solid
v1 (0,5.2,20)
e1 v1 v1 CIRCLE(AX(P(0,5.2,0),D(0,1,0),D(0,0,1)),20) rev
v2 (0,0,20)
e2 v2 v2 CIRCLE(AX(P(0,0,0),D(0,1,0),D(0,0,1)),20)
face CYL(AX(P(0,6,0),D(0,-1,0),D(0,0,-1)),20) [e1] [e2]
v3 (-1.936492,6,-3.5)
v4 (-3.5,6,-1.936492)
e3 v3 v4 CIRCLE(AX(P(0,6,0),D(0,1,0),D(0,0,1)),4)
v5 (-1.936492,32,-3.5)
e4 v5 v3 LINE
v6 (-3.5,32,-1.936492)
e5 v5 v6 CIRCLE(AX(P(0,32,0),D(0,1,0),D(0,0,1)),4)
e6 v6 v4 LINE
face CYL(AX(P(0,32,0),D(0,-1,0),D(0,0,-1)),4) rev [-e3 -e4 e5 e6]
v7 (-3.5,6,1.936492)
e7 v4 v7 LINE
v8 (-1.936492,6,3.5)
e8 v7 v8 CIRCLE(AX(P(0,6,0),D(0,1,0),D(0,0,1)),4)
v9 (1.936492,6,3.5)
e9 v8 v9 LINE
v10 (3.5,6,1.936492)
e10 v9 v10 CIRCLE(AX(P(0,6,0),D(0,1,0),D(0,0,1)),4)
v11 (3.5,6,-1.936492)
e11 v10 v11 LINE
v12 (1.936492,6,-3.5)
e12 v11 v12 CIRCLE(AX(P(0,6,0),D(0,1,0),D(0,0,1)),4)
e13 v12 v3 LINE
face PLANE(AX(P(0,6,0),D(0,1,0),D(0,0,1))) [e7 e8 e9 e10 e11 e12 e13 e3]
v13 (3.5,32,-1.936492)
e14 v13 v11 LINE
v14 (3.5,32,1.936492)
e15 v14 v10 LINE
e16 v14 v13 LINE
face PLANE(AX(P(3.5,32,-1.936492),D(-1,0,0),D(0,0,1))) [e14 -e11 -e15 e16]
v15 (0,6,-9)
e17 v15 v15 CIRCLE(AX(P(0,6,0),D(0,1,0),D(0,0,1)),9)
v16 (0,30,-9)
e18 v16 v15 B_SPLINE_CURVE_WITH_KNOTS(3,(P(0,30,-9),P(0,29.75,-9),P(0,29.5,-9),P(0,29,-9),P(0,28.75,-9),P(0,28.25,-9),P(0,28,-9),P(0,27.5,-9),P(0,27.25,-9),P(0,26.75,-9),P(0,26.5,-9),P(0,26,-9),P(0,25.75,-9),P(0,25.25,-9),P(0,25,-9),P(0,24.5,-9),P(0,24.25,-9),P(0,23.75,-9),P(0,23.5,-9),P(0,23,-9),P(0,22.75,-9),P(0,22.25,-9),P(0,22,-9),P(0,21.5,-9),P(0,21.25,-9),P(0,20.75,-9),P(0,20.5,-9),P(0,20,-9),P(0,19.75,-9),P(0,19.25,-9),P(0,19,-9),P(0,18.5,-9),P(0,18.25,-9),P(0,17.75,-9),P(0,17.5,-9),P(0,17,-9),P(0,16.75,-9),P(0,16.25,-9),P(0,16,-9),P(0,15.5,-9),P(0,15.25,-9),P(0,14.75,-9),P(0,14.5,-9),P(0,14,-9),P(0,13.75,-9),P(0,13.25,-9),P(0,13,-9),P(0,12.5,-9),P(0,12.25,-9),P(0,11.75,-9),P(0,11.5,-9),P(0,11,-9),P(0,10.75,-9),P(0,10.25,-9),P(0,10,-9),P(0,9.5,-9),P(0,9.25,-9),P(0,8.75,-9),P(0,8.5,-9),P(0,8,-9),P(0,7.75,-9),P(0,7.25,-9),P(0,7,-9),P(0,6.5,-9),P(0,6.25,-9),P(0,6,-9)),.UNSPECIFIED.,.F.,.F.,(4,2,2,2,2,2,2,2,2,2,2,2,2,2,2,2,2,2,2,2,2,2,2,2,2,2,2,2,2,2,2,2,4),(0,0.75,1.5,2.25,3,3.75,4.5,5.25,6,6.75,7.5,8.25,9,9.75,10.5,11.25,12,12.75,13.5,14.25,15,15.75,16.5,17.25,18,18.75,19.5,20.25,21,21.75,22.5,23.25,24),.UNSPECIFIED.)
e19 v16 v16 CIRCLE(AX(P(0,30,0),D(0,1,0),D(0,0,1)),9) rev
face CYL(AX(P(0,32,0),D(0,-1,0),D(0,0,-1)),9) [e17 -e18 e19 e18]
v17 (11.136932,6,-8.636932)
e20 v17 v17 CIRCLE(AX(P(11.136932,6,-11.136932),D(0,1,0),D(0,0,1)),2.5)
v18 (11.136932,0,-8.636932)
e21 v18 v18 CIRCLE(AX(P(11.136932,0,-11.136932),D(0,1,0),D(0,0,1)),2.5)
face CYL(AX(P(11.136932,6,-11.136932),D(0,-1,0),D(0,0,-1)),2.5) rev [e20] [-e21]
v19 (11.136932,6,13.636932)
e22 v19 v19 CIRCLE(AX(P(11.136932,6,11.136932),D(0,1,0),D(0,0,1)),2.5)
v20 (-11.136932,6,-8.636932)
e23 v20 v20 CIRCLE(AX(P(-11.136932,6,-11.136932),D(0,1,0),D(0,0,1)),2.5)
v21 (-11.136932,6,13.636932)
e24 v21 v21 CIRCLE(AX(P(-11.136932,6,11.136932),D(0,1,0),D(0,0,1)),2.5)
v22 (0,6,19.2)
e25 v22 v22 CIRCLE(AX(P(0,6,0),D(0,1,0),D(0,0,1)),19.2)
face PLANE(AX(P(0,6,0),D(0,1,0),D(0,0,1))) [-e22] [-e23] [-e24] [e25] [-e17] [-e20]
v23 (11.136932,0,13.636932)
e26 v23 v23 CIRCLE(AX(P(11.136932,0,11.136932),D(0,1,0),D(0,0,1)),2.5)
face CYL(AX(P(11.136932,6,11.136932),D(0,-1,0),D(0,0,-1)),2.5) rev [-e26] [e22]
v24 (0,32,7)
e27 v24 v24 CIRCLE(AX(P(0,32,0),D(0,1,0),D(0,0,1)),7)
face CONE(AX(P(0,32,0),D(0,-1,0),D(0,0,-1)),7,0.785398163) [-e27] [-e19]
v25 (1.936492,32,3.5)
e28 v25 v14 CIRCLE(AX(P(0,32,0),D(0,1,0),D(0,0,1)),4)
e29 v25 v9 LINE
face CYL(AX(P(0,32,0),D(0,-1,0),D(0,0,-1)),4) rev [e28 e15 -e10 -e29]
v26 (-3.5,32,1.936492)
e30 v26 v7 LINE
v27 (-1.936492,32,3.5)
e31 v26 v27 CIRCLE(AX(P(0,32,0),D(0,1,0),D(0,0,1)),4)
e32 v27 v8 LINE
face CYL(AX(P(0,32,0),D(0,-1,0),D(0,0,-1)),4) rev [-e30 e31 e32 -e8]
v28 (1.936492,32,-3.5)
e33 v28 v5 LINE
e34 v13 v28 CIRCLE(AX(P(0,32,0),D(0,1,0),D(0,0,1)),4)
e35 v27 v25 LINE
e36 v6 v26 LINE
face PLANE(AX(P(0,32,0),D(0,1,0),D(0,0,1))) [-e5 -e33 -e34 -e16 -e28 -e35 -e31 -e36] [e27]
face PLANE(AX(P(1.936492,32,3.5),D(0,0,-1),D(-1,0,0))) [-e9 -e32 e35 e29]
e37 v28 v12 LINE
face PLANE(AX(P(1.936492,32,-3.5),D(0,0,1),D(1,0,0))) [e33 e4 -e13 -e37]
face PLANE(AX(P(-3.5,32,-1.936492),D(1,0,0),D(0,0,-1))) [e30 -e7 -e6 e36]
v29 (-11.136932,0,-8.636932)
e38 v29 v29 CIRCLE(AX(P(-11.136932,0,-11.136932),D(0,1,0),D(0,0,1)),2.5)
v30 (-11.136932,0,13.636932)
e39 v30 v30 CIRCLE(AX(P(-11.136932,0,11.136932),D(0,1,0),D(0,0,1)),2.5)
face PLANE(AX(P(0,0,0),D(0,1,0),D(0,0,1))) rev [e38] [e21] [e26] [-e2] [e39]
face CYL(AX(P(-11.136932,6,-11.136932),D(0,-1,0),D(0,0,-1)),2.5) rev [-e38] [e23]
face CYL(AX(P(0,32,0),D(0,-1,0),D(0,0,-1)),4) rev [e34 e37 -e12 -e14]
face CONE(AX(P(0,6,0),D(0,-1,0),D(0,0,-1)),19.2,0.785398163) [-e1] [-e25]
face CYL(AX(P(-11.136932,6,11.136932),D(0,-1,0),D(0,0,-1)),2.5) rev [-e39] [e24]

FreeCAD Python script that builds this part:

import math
import FreeCAD as App
import Part
import Sketcher
Q = App.Units.Quantity


def edges_at(feature, points):
    """Names of the edges that pass closest to the given points."""
    edges = feature.Shape.Edges
    near = lambda p: min(range(len(edges)), key=lambda i: edges[i].distToShape(Part.Vertex(*p))[0])
    return sorted({f"Edge{near(p) + 1}" for p in points})

doc = App.newDocument("Part")
params = doc.addObject("Spreadsheet::Sheet", "Params")
for row, (alias, value) in enumerate([
    ("sketch1_diameter", "40 mm"),
    ("sketch1_diameter2", "5 mm"),
    ("pad1_length", "6 mm"),
    ("sketch2_diameter", "18 mm"),
    ("sketch2_radius", "4 mm"),
    ("pad2_length", "26 mm"),
    ("chamfer_size", "0.8 mm"),
    ("chamfer2_size", "2 mm"),
], start=1):
    params.set(f"A{row}", alias)
    params.set(f"B{row}", "=" + value)
    params.setAlias(f"B{row}", alias)

body = doc.addObject("PartDesign::Body", "Body")

# Sketch on XZ plane
sketch1 = body.newObject("Sketcher::SketchObject", "Sketch")
sketch1.AttachmentSupport = (doc.getObject("XZ_Plane"), [""])
sketch1.MapMode = "FlatFace"
sketch1.addGeometry([
    Part.Circle(App.Vector(0, 0, 0), App.Vector(0, 0, 1), 20),  # 0
    Part.Circle(App.Vector(-11.1, -11.1, 0), App.Vector(0, 0, 1), 2.5),  # 1
    Part.Circle(App.Vector(-11.1, 11.1, 0), App.Vector(0, 0, 1), 2.5),  # 2
    Part.Circle(App.Vector(11.1, -11.1, 0), App.Vector(0, 0, 1), 2.5),  # 3
    Part.Circle(App.Vector(11.1, 11.1, 0), App.Vector(0, 0, 1), 2.5),  # 4
], False)
sketch1.addConstraint([
    Sketcher.Constraint("Coincident", 0, 3, -1, 1),
    Sketcher.Constraint("Equal", 1, 2),
    Sketcher.Constraint("Equal", 2, 3),
    Sketcher.Constraint("Equal", 3, 4),
    Sketcher.Constraint("Symmetric", 2, 3, 3, 3, -1, 1),
    Sketcher.Constraint("Symmetric", 1, 3, 4, 3, -1, 1),
    Sketcher.Constraint("Symmetric", 1, 3, 3, 3, -2),
    Sketcher.Constraint("Diameter", 0, Q("40 mm")),
    Sketcher.Constraint("Diameter", 1, Q("5 mm")),
    Sketcher.Constraint("DistanceX", 1, 3, -1, 1, Q("11.136932 mm")),
    Sketcher.Constraint("DistanceY", 1, 3, -1, 1, Q("11.136932 mm")),
])
sketch1.setExpression("Constraints[7]", "Params.sketch1_diameter")
sketch1.setExpression("Constraints[8]", "Params.sketch1_diameter2")
pad1 = body.newObject("PartDesign::Pad", "Pad")
pad1.Profile = sketch1
pad1.setExpression("Length", "Params.pad1_length")
pad1.Reversed = True

# Sketch on XZ plane
sketch2 = body.newObject("Sketcher::SketchObject", "Sketch001")
sketch2.AttachmentSupport = (doc.getObject("XZ_Plane"), [""])
sketch2.MapMode = "FlatFace"
sketch2.AttachmentOffset = App.Placement(App.Vector(0, 0, -6), App.Rotation())
sketch2.addGeometry([
    Part.Circle(App.Vector(0, 0, 0), App.Vector(0, 0, 1), 9),  # 0
    Part.LineSegment(App.Vector(-1.9, -3.5, 0), App.Vector(1.9, -3.5, 0)),  # 1
    Part.ArcOfCircle(Part.Circle(App.Vector(0, 0, 0), App.Vector(0, 0, 1), 4), math.radians(-61), math.radians(-29)),  # 2
    Part.LineSegment(App.Vector(3.5, -1.9, 0), App.Vector(3.5, 1.9, 0)),  # 3
    Part.ArcOfCircle(Part.Circle(App.Vector(0, 0, 0), App.Vector(0, 0, 1), 4), math.radians(29), math.radians(61)),  # 4
    Part.LineSegment(App.Vector(1.9, 3.5, 0), App.Vector(-1.9, 3.5, 0)),  # 5
    Part.ArcOfCircle(Part.Circle(App.Vector(0, 0, 0), App.Vector(0, 0, 1), 4), math.radians(119), math.radians(151)),  # 6
    Part.LineSegment(App.Vector(-3.5, 1.9, 0), App.Vector(-3.5, -1.9, 0)),  # 7
    Part.ArcOfCircle(Part.Circle(App.Vector(0, 0, 0), App.Vector(0, 0, 1), 4), math.radians(-151), math.radians(-119)),  # 8
], False)
sketch2.addConstraint([
    Sketcher.Constraint("Coincident", 1, 2, 2, 1),
    Sketcher.Constraint("Coincident", 2, 2, 3, 1),
    Sketcher.Constraint("Coincident", 3, 2, 4, 1),
    Sketcher.Constraint("Coincident", 4, 2, 5, 1),
    Sketcher.Constraint("Coincident", 5, 2, 6, 1),
    Sketcher.Constraint("Coincident", 6, 2, 7, 1),
    Sketcher.Constraint("Coincident", 7, 2, 8, 1),
    Sketcher.Constraint("Coincident", 8, 2, 1, 1),
    Sketcher.Constraint("Horizontal", 1),
    Sketcher.Constraint("Vertical", 3),
    Sketcher.Constraint("Horizontal", 5),
    Sketcher.Constraint("Vertical", 7),
    Sketcher.Constraint("Coincident", 0, 3, -1, 1),
    Sketcher.Constraint("Coincident", 2, 3, -1, 1),
    Sketcher.Constraint("Coincident", 4, 3, -1, 1),
    Sketcher.Constraint("Coincident", 6, 3, -1, 1),
    Sketcher.Constraint("Coincident", 8, 3, -1, 1),
    Sketcher.Constraint("Equal", 2, 4),
    Sketcher.Constraint("Equal", 4, 6),
    Sketcher.Constraint("Equal", 6, 8),
    Sketcher.Constraint("Horizontal", 3, 2, 6, 2),
    Sketcher.Constraint("Vertical", 1, 2, 4, 2),
    Sketcher.Constraint("Equal", 5, 3),
    Sketcher.Constraint("Diameter", 0, Q("18 mm")),
    Sketcher.Constraint("Radius", 2, Q("4 mm")),
    Sketcher.Constraint("DistanceY", 1, 2, -1, 1, Q("3.5 mm")),
])
sketch2.setExpression("Constraints[23]", "Params.sketch2_diameter")
sketch2.setExpression("Constraints[24]", "Params.sketch2_radius")
pad2 = body.newObject("PartDesign::Pad", "Pad001")
pad2.Profile = sketch2
pad2.setExpression("Length", "Params.pad2_length")
pad2.Reversed = True
doc.recompute()

chamfer = body.newObject("PartDesign::Chamfer", "Chamfer")
chamfer.Base = (pad2, edges_at(pad2, [(0, 6, -20)]))
chamfer.setExpression("Size", "Params.chamfer_size")
doc.recompute()

chamfer2 = body.newObject("PartDesign::Chamfer", "Chamfer001")
chamfer2.Base = (chamfer, edges_at(chamfer, [(0, 32, 9)]))
chamfer2.setExpression("Size", "Params.chamfer2_size")

doc.recompute()
